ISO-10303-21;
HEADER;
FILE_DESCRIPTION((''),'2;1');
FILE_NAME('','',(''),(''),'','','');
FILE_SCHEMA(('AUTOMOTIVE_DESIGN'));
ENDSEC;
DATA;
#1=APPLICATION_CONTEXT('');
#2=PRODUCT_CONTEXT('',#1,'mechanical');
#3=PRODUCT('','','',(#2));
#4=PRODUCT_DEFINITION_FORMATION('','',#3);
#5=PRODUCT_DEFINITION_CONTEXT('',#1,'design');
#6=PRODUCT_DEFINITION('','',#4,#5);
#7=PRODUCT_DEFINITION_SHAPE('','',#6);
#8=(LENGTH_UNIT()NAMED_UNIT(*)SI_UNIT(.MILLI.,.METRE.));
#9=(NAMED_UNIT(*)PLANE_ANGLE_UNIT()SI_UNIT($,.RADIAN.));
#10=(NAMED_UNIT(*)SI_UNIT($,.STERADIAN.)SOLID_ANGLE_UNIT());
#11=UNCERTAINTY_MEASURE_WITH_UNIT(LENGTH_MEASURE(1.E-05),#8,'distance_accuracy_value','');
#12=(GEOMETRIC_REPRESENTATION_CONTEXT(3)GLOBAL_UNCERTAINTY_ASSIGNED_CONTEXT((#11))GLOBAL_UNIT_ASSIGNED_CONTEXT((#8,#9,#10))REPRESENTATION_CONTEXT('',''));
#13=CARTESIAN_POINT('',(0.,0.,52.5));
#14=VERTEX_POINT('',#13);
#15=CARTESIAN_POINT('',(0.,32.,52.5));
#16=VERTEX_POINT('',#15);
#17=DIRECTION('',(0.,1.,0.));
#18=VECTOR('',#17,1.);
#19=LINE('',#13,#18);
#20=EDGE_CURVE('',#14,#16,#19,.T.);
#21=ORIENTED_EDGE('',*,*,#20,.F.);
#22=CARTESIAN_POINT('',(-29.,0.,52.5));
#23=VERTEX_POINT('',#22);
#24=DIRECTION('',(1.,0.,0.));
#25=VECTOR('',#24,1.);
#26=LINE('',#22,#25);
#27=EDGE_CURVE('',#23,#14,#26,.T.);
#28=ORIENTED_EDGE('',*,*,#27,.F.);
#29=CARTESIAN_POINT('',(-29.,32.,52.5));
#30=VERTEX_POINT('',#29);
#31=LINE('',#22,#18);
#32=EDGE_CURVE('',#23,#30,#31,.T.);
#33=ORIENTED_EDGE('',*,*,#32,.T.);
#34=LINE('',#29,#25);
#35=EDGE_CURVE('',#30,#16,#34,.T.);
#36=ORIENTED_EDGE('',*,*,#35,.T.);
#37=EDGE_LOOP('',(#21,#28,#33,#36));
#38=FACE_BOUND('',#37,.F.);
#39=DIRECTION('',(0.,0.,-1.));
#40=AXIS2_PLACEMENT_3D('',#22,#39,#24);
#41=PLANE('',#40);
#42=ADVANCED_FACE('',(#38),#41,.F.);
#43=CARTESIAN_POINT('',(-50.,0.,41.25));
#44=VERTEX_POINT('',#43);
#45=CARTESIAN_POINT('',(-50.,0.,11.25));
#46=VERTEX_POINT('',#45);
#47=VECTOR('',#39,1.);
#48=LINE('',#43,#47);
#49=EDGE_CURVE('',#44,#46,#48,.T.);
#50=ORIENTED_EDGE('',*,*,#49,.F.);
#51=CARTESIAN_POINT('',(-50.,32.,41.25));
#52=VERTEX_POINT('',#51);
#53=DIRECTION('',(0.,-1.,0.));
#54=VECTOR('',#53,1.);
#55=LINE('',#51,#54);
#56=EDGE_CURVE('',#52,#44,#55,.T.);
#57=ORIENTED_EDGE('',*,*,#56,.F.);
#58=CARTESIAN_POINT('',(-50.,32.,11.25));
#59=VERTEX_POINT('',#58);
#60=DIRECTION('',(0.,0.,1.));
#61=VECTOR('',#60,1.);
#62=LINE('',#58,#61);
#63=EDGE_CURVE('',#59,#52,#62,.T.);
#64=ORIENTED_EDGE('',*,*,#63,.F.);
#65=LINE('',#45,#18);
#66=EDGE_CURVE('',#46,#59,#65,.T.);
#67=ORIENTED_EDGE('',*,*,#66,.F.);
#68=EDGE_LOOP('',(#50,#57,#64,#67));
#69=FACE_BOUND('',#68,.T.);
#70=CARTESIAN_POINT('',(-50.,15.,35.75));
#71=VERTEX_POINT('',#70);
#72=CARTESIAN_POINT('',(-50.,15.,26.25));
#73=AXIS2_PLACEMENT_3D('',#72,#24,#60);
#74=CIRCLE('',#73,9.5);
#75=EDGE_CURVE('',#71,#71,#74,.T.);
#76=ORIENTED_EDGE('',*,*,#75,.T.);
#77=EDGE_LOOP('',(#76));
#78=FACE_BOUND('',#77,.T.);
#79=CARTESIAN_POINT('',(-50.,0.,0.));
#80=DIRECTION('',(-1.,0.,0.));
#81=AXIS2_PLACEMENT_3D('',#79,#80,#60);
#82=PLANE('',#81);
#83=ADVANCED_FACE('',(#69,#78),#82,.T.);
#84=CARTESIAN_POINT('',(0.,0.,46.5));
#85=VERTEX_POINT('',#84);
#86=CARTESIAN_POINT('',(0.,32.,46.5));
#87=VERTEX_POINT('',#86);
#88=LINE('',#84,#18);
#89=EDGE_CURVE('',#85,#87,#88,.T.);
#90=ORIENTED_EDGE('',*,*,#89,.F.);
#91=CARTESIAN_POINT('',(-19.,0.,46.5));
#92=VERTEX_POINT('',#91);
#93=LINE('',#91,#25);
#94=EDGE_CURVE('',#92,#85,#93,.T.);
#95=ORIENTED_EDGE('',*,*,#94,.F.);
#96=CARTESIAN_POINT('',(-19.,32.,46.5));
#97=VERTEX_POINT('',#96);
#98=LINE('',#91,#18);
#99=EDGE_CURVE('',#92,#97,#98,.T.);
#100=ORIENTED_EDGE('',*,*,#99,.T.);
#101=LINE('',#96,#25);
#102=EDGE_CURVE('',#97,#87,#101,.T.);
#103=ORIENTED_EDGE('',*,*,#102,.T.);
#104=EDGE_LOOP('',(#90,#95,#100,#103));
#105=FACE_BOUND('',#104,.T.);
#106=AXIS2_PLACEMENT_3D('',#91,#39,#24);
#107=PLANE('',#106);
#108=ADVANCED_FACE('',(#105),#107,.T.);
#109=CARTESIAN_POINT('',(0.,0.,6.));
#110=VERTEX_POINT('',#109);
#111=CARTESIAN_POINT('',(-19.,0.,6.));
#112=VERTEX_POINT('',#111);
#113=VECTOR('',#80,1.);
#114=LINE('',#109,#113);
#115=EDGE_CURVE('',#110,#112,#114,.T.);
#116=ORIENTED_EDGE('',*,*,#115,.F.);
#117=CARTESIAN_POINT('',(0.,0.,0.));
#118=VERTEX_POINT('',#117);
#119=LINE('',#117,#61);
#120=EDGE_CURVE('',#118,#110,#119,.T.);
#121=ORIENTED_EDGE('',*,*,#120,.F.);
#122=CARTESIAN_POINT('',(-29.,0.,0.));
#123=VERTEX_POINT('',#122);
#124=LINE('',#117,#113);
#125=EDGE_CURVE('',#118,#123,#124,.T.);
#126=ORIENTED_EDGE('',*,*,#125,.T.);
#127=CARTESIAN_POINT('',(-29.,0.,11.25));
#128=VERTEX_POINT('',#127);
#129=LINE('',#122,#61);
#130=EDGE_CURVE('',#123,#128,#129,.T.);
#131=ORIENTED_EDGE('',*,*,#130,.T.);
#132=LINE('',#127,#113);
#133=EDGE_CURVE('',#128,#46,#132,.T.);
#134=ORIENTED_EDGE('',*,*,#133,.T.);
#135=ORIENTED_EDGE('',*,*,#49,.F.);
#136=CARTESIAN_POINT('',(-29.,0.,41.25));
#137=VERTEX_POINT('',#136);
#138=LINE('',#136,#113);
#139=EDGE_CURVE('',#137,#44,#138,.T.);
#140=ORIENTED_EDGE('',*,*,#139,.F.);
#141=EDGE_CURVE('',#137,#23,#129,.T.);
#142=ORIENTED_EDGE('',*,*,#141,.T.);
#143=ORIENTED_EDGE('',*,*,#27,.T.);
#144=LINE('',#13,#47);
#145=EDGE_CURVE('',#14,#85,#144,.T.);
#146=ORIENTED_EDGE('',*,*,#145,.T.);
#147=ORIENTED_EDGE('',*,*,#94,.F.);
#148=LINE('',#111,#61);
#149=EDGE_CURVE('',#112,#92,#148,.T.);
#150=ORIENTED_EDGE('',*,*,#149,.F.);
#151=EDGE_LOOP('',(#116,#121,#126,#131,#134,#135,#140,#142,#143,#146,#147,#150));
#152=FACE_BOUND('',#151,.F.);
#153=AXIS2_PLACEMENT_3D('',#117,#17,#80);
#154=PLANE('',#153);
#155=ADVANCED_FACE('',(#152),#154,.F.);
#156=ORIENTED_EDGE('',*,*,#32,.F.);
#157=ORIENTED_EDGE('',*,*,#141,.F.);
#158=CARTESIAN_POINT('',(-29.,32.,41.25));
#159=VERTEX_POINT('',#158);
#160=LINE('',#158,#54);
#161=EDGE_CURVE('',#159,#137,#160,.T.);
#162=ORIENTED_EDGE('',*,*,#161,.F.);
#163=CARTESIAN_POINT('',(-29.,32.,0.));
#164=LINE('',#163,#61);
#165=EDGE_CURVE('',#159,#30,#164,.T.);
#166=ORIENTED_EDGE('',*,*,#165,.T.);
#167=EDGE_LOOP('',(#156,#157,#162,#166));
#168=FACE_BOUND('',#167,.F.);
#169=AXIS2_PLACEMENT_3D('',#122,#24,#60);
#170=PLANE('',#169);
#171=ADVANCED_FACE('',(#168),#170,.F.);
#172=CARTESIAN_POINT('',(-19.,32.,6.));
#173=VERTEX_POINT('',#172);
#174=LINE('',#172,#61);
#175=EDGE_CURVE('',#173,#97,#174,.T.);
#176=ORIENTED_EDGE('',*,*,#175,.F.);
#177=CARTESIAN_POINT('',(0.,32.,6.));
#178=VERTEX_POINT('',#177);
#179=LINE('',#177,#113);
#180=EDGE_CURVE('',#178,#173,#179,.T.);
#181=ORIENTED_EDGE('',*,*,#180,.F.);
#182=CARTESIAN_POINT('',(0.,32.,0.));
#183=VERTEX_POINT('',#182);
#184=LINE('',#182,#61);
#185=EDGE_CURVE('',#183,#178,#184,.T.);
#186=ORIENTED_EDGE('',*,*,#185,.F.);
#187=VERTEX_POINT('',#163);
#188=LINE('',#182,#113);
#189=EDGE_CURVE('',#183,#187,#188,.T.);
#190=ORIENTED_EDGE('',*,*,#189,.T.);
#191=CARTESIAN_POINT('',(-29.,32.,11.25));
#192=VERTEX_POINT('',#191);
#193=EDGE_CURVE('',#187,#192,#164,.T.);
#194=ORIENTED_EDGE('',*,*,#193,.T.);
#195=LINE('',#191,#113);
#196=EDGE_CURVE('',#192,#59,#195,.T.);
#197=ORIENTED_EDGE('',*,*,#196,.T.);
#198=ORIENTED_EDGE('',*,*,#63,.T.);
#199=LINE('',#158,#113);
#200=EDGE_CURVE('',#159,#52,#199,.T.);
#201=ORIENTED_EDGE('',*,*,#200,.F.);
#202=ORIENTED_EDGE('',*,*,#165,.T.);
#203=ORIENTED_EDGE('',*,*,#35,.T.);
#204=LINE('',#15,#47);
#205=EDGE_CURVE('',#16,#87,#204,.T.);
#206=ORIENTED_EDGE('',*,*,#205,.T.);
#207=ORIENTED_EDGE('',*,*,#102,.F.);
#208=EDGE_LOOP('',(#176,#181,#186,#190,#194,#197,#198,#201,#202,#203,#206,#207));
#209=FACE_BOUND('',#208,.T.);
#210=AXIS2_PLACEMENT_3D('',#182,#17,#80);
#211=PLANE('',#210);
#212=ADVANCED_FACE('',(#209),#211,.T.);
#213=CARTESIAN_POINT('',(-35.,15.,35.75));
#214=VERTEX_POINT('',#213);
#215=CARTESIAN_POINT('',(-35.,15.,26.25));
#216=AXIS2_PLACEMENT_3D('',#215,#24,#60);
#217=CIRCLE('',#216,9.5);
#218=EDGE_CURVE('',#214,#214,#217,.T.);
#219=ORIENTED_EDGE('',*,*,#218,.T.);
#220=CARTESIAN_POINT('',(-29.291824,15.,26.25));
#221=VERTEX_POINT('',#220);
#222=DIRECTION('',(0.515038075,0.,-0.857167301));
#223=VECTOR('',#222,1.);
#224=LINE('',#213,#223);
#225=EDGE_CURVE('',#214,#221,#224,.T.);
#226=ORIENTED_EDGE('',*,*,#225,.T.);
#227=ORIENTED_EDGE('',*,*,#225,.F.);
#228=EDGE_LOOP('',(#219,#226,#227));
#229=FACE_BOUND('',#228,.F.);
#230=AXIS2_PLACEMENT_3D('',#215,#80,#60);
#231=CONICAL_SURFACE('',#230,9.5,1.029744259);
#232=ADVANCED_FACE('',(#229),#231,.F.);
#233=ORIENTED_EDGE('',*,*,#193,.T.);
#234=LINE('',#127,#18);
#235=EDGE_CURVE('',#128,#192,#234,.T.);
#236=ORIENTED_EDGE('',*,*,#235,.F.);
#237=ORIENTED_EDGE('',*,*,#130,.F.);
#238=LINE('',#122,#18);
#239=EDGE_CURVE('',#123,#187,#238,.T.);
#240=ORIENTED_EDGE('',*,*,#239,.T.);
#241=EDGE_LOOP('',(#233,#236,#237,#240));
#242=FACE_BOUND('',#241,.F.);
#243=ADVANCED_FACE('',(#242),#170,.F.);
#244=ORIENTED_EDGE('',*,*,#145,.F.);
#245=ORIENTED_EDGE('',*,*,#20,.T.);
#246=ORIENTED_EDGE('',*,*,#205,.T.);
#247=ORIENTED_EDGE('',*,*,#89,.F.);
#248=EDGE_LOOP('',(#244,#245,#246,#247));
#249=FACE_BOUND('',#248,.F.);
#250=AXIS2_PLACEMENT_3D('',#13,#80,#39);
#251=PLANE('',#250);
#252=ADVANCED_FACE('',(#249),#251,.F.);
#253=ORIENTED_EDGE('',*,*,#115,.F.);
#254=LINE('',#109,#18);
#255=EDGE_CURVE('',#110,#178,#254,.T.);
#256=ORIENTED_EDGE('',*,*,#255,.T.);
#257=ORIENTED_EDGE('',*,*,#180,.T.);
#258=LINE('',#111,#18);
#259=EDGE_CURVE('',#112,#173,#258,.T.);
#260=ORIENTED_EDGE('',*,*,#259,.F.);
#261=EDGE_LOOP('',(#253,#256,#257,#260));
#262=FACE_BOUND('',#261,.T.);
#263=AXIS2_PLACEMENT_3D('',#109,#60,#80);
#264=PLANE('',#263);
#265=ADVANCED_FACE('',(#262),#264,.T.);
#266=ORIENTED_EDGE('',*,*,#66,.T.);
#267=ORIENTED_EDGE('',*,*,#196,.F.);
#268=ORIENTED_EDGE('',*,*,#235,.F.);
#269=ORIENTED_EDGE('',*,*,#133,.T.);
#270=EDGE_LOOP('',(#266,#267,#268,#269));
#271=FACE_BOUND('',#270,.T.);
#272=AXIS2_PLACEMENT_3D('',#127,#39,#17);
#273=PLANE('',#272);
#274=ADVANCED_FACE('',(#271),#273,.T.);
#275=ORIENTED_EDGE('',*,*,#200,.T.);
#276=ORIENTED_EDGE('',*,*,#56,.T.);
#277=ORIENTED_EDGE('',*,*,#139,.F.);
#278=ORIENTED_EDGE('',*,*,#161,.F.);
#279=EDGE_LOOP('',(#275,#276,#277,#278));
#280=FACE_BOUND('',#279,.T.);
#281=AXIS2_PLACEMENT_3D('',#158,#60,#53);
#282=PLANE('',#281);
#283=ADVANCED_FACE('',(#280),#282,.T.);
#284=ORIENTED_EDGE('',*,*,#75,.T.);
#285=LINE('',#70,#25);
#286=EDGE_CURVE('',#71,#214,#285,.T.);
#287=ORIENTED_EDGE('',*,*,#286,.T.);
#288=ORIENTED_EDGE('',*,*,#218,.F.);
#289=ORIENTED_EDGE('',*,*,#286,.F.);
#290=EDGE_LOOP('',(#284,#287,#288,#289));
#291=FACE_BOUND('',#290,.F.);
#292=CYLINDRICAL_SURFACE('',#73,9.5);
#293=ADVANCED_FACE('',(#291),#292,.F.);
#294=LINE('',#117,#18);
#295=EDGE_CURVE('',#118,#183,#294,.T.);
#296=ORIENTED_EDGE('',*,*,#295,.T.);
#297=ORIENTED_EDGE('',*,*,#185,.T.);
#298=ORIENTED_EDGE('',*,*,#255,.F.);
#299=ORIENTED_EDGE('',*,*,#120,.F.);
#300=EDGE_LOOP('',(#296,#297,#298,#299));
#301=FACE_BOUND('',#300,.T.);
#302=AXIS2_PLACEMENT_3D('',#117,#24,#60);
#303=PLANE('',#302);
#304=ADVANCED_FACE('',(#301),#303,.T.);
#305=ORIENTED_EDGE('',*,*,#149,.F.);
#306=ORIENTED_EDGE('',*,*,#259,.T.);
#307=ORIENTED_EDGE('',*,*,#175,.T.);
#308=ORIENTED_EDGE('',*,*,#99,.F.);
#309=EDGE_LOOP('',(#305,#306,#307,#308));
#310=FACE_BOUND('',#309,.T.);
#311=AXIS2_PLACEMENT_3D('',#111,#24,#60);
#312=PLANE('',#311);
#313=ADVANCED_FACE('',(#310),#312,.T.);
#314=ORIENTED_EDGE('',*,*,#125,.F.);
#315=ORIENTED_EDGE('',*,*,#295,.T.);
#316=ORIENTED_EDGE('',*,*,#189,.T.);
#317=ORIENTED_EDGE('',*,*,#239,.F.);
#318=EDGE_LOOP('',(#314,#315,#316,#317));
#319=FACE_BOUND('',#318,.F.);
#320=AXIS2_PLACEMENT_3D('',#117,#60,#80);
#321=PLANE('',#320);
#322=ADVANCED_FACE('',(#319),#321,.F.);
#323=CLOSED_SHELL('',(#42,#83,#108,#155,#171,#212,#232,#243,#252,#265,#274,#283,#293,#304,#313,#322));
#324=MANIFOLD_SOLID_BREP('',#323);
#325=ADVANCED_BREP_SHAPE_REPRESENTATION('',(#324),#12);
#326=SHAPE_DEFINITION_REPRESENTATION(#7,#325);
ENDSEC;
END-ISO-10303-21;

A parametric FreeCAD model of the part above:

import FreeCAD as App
import Part
import Sketcher
from FreeCAD import Vector


def add_polygon(sketch, points):
    """Adds a closed chain of lines whose ends are joined by coincident constraints."""
    first, n = sketch.GeometryCount, len(points)
    for a, b in zip(points, points[1:] + points[:1]):
        sketch.addGeometry(Part.LineSegment(App.Vector(*a, 0), App.Vector(*b, 0)), False)
    for i in range(n):
        sketch.addConstraint(Sketcher.Constraint("Coincident", first + i, 2, first + (i + 1) % n, 1))

doc = App.newDocument("Part")
body = doc.addObject("PartDesign::Body", "Body")

sketch1 = body.newObject("Sketcher::SketchObject", "Sketch")
sketch1.AttachmentSupport = (doc.getObject("XZ_Plane"), [""])
sketch1.MapMode = "FlatFace"
add_polygon(sketch1, [(0, 6), (0, 0), (-29, 0), (-29, 52), (0, 52), (0, 46), (-19, 46), (-19, 6)])
sketch1.addConstraint(Sketcher.Constraint("Vertical", 0))
sketch1.addConstraint(Sketcher.Constraint("Horizontal", 1))
sketch1.addConstraint(Sketcher.Constraint("Vertical", 2))
sketch1.addConstraint(Sketcher.Constraint("Horizontal", 3))
sketch1.addConstraint(Sketcher.Constraint("Vertical", 4))
sketch1.addConstraint(Sketcher.Constraint("Horizontal", 5))
sketch1.addConstraint(Sketcher.Constraint("Vertical", 6))
sketch1.addConstraint(Sketcher.Constraint("Horizontal", 7))
sketch1.addConstraint(Sketcher.Constraint("Coincident", 0, 2, -1, 1))
sketch1.addConstraint(Sketcher.Constraint("PointOnObject", 3, 2, -2))
sketch1.addConstraint(Sketcher.Constraint("Equal", 0, 4))
sketch1.addConstraint(Sketcher.Constraint("DistanceX", 1, 2, 1, 1, 29.0))
sketch1.addConstraint(Sketcher.Constraint("DistanceX", 5, 2, 5, 1, 19.0))
sketch1.addConstraint(Sketcher.Constraint("DistanceY", 0, 2, 0, 1, 6.0))
sketch1.addConstraint(Sketcher.Constraint("DistanceY", 2, 1, 2, 2, 52.5))
pad1 = body.newObject("PartDesign::Pad", "Pad")
pad1.Profile = sketch1
pad1.Length = 32
pad1.Reversed = True

sketch2 = body.newObject("Sketcher::SketchObject", "Sketch001")
sketch2.AttachmentSupport = (doc.getObject("YZ_Plane"), [""])
sketch2.MapMode = "FlatFace"
sketch2.AttachmentOffset = App.Placement(Vector(0, 0, -29), App.Rotation())
add_polygon(sketch2, [(32, 41), (32, 11), (0, 11), (0, 41)])
sketch2.addConstraint(Sketcher.Constraint("Vertical", 0))
sketch2.addConstraint(Sketcher.Constraint("Horizontal", 1))
sketch2.addConstraint(Sketcher.Constraint("Vertical", 2))
sketch2.addConstraint(Sketcher.Constraint("Horizontal", 3))
sketch2.addConstraint(Sketcher.Constraint("PointOnObject", 1, 2, -2))
sketch2.addConstraint(Sketcher.Constraint("DistanceX", 1, 2, 1, 1, 32.0))
sketch2.addConstraint(Sketcher.Constraint("DistanceY", 0, 2, 0, 1, 30.0))
sketch2.addConstraint(Sketcher.Constraint("DistanceY", -1, 1, 0, 2, 11.25))
pad2 = body.newObject("PartDesign::Pad", "Pad001")
pad2.Profile = sketch2
pad2.Length = 21
pad2.Reversed = True

sketch3 = body.newObject("Sketcher::SketchObject", "Sketch002")
sketch3.AttachmentSupport = (doc.getObject("YZ_Plane"), [""])
sketch3.MapMode = "FlatFace"
sketch3.AttachmentOffset = App.Placement(Vector(0, 0, -50), App.Rotation())
sketch3.addGeometry(Part.Circle(Vector(15, 26, 0), Vector(0, 0, 1), 10), False)
sketch3.addConstraint(Sketcher.Constraint("Diameter", 0, 19.0))
sketch3.addConstraint(Sketcher.Constraint("DistanceX", -1, 1, 0, 3, 15.0))
sketch3.addConstraint(Sketcher.Constraint("DistanceY", -1, 1, 0, 3, 26.25))
doc.recompute()
hole = body.newObject("PartDesign::Hole", "Hole")
hole.Profile = sketch3
hole.ThreadType = "None"
hole.Diameter = 19
hole.DepthType = "Dimension"
hole.Depth = 15
hole.DrillPoint = "Angled"
hole.DrillPointAngle = 118
hole.Reversed = True

doc.recompute()
